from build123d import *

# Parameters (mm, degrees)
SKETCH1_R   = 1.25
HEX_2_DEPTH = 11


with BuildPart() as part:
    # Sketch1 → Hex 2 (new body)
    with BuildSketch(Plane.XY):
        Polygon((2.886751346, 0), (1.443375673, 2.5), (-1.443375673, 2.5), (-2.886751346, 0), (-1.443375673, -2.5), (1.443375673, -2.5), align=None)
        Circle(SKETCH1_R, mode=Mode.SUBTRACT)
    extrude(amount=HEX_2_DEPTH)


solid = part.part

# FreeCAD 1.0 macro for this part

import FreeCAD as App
import Part
import Sketcher
from FreeCAD import Vector
Q = App.Units.Quantity


def add_polygon(sketch, points):
    """Adds a closed chain of lines whose ends are joined by coincident constraints."""
    first, n = sketch.GeometryCount, len(points)
    for a, b in zip(points, points[1:] + points[:1]):
        sketch.addGeometry(Part.LineSegment(App.Vector(*a, 0), App.Vector(*b, 0)), False)
    for i in range(n):
        sketch.addConstraint(Sketcher.Constraint("Coincident", first + i, 2, first + (i + 1) % n, 1))

doc = App.newDocument("Part")
body = doc.addObject("PartDesign::Body", "Body")

sketch1 = body.newObject("Sketcher::SketchObject", "Sketch")
sketch1.AttachmentSupport = (doc.getObject("XY_Plane"), [""])
sketch1.MapMode = "FlatFace"
add_polygon(sketch1, [(2.9, 0), (1.4, 2.5), (-1.4, 2.5), (-2.9, 0), (-1.4, -2.5), (1.4, -2.5)])
sketch1.addGeometry(Part.Circle(Vector(0, 0, 0), Vector(0, 0, 1), 1.2), False)
sketch1.addConstraint([
    Sketcher.Constraint("Horizontal", 1),
    Sketcher.Constraint("Horizontal", 4),
    Sketcher.Constraint("Coincident", 6, 3, -1, 1),
    Sketcher.Constraint("Symmetric", 0, 2, 3, 2, -1, 1),
    Sketcher.Constraint("Symmetric", 2, 2, 5, 2, -1, 1),
    Sketcher.Constraint("PointOnObject", 2, 2, -1),
    Sketcher.Constraint("Parallel", 2, 5),
    Sketcher.Constraint("Vertical", 1, 2, 3, 2),
    Sketcher.Constraint("Diameter", 6, Q("2.5 mm")),
    Sketcher.Constraint("Angle", 0, Q("120 deg")),
    Sketcher.Constraint("DistanceY", 3, 2, 1, 2, Q("5 mm")),
    Sketcher.Constraint("DistanceX", 1, 2, 1, 1, Q("2.886751 mm")),
])
pad1 = body.newObject("PartDesign::Pad", "Pad")
pad1.Profile = sketch1
pad1.Length = 11

doc.recompute()
